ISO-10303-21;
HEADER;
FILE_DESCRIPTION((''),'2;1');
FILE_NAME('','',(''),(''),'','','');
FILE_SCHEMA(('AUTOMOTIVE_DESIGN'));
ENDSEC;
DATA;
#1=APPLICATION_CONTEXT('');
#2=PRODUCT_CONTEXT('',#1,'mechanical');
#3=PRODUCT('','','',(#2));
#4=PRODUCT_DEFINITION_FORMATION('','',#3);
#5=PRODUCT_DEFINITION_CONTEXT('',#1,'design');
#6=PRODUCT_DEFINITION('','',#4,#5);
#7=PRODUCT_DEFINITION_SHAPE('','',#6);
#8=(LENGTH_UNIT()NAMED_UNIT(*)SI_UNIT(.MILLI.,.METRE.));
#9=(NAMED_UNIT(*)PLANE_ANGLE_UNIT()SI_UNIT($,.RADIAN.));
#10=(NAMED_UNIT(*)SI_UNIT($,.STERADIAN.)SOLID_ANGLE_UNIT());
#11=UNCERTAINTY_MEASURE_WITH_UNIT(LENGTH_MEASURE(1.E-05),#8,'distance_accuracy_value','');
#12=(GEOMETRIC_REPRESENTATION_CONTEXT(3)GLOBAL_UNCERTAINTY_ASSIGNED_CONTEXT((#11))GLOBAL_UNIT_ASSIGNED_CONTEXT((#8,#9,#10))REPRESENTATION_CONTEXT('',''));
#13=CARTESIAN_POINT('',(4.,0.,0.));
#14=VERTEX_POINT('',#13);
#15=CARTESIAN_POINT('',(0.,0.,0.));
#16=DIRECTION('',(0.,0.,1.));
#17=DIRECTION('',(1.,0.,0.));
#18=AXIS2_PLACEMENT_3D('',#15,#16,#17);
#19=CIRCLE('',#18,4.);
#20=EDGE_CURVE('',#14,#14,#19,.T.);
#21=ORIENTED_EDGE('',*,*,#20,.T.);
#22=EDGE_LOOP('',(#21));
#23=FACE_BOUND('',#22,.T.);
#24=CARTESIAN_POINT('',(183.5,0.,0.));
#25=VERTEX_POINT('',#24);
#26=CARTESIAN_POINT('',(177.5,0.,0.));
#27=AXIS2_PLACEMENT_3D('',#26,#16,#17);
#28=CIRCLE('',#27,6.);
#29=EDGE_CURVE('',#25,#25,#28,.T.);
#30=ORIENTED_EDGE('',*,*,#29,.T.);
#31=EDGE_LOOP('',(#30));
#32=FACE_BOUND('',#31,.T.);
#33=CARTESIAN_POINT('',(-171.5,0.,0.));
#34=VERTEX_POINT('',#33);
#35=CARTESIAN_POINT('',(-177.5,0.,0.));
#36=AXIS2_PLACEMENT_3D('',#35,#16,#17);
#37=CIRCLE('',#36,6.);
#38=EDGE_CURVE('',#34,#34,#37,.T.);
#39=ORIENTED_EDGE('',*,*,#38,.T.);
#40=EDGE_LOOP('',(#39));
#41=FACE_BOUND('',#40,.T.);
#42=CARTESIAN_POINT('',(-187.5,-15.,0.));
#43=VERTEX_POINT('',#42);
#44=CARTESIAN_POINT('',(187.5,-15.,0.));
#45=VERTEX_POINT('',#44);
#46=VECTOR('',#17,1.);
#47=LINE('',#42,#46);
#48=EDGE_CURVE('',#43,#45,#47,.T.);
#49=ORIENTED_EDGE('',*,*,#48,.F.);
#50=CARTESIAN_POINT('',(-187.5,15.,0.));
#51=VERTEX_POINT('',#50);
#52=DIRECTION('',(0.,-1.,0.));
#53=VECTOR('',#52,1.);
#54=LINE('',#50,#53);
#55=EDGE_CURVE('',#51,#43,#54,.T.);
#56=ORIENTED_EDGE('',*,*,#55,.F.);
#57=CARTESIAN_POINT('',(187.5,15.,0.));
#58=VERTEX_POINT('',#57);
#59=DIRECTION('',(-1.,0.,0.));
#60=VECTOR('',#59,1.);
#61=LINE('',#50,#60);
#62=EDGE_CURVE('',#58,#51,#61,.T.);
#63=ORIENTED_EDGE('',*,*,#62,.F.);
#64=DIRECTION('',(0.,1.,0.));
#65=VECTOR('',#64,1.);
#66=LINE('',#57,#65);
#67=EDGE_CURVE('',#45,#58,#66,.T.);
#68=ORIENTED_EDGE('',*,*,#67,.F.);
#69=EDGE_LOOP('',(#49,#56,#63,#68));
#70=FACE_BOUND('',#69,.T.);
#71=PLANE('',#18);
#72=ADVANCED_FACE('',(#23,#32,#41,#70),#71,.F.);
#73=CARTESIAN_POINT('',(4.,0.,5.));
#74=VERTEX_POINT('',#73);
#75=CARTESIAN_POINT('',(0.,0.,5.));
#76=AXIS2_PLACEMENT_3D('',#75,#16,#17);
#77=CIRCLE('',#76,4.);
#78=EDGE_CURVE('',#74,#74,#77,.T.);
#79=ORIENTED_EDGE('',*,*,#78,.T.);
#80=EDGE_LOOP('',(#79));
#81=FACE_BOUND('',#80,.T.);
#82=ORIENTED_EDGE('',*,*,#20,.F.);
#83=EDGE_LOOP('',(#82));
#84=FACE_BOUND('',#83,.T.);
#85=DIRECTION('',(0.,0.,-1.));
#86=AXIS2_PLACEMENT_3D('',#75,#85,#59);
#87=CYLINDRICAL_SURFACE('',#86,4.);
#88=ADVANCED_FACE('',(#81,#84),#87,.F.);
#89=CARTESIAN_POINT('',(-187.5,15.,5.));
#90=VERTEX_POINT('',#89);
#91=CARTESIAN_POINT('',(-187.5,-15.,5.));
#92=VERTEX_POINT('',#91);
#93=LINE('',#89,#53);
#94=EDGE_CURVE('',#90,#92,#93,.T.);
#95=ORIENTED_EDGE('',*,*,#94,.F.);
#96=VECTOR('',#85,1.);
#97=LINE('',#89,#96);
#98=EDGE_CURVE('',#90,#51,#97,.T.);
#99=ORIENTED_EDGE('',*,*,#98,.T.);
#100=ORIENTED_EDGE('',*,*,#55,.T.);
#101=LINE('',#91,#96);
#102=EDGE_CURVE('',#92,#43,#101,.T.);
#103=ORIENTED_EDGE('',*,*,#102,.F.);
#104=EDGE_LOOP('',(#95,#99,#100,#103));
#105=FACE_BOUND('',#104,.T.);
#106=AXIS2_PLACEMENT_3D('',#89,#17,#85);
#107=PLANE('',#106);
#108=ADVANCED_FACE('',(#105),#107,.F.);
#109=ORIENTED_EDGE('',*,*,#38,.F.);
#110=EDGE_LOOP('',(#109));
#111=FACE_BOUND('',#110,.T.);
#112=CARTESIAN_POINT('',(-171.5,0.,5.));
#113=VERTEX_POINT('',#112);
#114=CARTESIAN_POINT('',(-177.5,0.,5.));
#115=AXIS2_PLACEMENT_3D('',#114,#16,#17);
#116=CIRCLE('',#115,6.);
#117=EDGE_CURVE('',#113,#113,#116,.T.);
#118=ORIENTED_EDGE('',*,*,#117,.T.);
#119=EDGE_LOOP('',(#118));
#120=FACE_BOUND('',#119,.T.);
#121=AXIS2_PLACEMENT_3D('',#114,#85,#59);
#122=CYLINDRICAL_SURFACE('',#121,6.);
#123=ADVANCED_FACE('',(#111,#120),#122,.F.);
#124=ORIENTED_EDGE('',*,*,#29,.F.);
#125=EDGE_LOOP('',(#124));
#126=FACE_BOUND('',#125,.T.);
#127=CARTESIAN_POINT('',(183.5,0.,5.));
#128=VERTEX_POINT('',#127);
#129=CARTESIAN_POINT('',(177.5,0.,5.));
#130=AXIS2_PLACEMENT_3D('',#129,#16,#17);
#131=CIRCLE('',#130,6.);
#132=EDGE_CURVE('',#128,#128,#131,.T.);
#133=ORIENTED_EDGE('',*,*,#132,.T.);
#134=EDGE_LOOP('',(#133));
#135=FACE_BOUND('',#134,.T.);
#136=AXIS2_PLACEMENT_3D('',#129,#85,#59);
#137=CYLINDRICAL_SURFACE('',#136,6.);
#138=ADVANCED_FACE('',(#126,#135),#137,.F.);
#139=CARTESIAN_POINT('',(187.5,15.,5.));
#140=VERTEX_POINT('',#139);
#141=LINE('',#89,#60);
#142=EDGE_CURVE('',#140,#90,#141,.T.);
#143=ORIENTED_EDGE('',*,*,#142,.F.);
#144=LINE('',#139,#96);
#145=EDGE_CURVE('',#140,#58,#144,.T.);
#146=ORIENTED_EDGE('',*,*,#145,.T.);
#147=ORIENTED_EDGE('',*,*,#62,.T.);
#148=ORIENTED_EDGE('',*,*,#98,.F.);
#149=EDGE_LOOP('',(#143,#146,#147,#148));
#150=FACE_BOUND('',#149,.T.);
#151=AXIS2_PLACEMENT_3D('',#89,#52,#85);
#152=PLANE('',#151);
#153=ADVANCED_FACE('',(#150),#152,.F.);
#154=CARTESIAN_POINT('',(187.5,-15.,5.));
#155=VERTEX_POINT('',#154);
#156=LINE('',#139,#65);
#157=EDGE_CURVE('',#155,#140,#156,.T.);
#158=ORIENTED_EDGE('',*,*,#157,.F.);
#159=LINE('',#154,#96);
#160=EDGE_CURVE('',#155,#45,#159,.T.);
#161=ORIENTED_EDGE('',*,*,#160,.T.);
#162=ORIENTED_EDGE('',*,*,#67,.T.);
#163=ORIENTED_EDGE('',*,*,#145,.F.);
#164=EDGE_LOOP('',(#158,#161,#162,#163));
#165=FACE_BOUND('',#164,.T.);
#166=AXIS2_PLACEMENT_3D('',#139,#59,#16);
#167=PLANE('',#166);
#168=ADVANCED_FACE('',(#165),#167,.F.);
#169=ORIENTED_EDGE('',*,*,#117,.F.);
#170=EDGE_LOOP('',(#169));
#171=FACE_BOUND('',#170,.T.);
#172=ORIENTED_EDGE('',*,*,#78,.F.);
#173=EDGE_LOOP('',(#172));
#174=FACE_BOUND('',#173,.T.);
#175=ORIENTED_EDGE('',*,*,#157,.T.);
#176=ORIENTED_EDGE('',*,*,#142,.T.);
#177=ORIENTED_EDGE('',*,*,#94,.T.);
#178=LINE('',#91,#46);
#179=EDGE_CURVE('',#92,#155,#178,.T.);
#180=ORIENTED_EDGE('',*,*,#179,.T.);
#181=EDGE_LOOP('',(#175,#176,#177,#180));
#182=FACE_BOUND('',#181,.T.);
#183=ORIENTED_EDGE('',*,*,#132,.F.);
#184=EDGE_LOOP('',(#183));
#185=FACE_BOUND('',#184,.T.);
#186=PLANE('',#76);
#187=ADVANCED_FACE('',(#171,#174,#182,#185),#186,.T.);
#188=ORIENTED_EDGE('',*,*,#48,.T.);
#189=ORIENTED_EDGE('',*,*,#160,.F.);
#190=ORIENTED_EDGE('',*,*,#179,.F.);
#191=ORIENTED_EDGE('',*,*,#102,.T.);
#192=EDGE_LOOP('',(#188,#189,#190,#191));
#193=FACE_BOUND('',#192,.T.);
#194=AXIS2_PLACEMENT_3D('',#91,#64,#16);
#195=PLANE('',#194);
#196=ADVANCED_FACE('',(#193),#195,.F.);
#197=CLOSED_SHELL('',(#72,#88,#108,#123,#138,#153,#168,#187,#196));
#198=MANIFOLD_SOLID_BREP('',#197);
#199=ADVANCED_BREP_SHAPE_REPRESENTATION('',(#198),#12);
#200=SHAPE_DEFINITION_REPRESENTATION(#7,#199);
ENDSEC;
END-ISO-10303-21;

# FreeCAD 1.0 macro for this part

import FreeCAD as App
import Part
import Sketcher
from FreeCAD import Vector
Q = App.Units.Quantity

doc = App.newDocument("Part")
body = doc.addObject("PartDesign::Body", "Body")

# Sketch on XY plane
sketch1 = body.newObject("Sketcher::SketchObject", "Sketch")
sketch1.AttachmentSupport = (doc.getObject("XY_Plane"), [""])
sketch1.MapMode = "FlatFace"
sketch1.addGeometry(Part.LineSegment(Vector(-187.5, 15, 0), Vector(-187.5, -15, 0)), False)
sketch1.addGeometry(Part.LineSegment(Vector(-187.5, -15, 0), Vector(187.5, -15, 0)), False)
sketch1.addGeometry(Part.LineSegment(Vector(187.5, -15, 0), Vector(187.5, 15, 0)), False)
sketch1.addGeometry(Part.LineSegment(Vector(187.5, 15, 0), Vector(-187.5, 15, 0)), False)
sketch1.addGeometry(Part.Circle(Vector(-177.5, 0, 0), Vector(0, 0, 1), 6), False)
sketch1.addGeometry(Part.Circle(Vector(0, 0, 0), Vector(0, 0, 1), 4), False)
sketch1.addGeometry(Part.Circle(Vector(177.5, 0, 0), Vector(0, 0, 1), 6), False)
sketch1.addConstraint(Sketcher.Constraint("Coincident", 0, 2, 1, 1))
sketch1.addConstraint(Sketcher.Constraint("Coincident", 1, 2, 2, 1))
sketch1.addConstraint(Sketcher.Constraint("Coincident", 2, 2, 3, 1))
sketch1.addConstraint(Sketcher.Constraint("Coincident", 3, 2, 0, 1))
sketch1.addConstraint(Sketcher.Constraint("Vertical", 0))
sketch1.addConstraint(Sketcher.Constraint("Horizontal", 1))
sketch1.addConstraint(Sketcher.Constraint("Vertical", 2))
sketch1.addConstraint(Sketcher.Constraint("Horizontal", 3))
sketch1.addConstraint(Sketcher.Constraint("Coincident", 5, 3, -1, 1))
sketch1.addConstraint(Sketcher.Constraint("Equal", 4, 6))
sketch1.addConstraint(Sketcher.Constraint("Symmetric", 4, 3, 6, 3, -1, 1))
sketch1.addConstraint(Sketcher.Constraint("Symmetric", 0, 2, 2, 2, -1, 1))
sketch1.addConstraint(Sketcher.Constraint("PointOnObject", 4, 3, -1))
sketch1.addConstraint(Sketcher.Constraint("Diameter", 4, Q("12 mm")))
sketch1.addConstraint(Sketcher.Constraint("Diameter", 5, Q("8 mm")))
sketch1.addConstraint(Sketcher.Constraint("DistanceX", 1, 1, 1, 2, Q("375 mm")))
sketch1.addConstraint(Sketcher.Constraint("DistanceY", 0, 2, 0, 1, Q("30 mm")))
sketch1.addConstraint(Sketcher.Constraint("DistanceX", 4, 3, 6, 3, Q("355 mm")))
pad1 = body.newObject("PartDesign::Pad", "Pad")
pad1.Profile = sketch1
pad1.Length = 5

doc.recompute()
